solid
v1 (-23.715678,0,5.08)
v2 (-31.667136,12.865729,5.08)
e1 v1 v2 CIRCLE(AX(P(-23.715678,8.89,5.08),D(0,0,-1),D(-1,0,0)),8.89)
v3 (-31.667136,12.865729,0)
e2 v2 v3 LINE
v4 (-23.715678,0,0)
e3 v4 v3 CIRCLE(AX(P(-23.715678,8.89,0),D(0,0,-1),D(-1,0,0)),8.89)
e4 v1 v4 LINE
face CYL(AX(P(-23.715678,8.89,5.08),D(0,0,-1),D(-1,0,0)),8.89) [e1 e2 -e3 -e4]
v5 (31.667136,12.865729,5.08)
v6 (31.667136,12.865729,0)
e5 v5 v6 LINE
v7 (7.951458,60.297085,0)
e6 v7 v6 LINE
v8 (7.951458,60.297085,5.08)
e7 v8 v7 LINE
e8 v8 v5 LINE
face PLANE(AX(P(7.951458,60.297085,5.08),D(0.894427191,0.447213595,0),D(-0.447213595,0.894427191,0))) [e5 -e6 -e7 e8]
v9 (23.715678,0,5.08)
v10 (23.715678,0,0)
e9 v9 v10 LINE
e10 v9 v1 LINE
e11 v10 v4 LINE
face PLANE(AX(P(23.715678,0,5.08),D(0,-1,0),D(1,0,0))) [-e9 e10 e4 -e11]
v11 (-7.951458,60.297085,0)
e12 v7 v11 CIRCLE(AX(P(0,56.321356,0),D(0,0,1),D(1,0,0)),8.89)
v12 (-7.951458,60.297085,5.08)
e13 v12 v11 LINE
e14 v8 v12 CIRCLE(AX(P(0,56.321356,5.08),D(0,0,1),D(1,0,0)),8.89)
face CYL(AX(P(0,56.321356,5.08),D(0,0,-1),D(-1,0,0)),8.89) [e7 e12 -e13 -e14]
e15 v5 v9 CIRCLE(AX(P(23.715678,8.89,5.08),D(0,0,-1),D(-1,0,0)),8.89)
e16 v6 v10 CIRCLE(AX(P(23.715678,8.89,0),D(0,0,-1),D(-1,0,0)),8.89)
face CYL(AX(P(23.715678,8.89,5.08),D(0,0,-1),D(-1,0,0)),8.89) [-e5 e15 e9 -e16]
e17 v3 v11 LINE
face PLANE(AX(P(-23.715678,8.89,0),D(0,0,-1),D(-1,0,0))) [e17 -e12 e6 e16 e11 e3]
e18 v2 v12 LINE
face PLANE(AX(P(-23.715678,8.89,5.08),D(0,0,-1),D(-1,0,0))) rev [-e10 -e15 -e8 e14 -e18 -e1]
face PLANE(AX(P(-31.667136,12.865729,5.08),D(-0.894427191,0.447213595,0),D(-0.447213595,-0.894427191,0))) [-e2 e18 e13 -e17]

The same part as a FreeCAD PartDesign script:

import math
import FreeCAD as App
import Part
import Sketcher
from FreeCAD import Vector
Q = App.Units.Quantity

doc = App.newDocument("Part")
params = doc.addObject("Spreadsheet::Sheet", "Params")
for row, (alias, value) in enumerate([
    ("sketch1_radius", "0.35 in"),
    ("pad1_length", "0.2 in"),
], start=1):
    params.set(f"A{row}", alias)
    params.set(f"B{row}", "=" + value)
    params.setAlias(f"B{row}", alias)

body = doc.addObject("PartDesign::Body", "Body")

# Sketch on XY plane
sketch1 = body.newObject("Sketcher::SketchObject", "Sketch")
sketch1.AttachmentSupport = (doc.getObject("XY_Plane"), [""])
sketch1.MapMode = "FlatFace"
sketch1.addGeometry(Part.LineSegment(Vector(32, 13, 0), Vector(8, 60, 0)), False)
sketch1.addGeometry(Part.ArcOfCircle(Part.Circle(Vector(0, 56, 0), Vector(0, 0, 1), 9), math.radians(27), math.radians(153)), False)
sketch1.addGeometry(Part.LineSegment(Vector(-8, 60, 0), Vector(-32, 13, 0)), False)
sketch1.addGeometry(Part.ArcOfCircle(Part.Circle(Vector(-24, 9, 0), Vector(0, 0, 1), 9), math.radians(153), math.radians(270)), False)
sketch1.addGeometry(Part.LineSegment(Vector(-24, 0, 0), Vector(24, 0, 0)), False)
sketch1.addGeometry(Part.ArcOfCircle(Part.Circle(Vector(24, 9, 0), Vector(0, 0, 1), 9), math.radians(-90), math.radians(27)), False)
sketch1.addConstraint(Sketcher.Constraint("Tangent", 0, 2, 1, 1))
sketch1.addConstraint(Sketcher.Constraint("Tangent", 1, 2, 2, 1))
sketch1.addConstraint(Sketcher.Constraint("Tangent", 2, 2, 3, 1))
sketch1.addConstraint(Sketcher.Constraint("Tangent", 3, 2, 4, 1))
sketch1.addConstraint(Sketcher.Constraint("Tangent", 4, 2, 5, 1))
sketch1.addConstraint(Sketcher.Constraint("Tangent", 5, 2, 0, 1))
sketch1.addConstraint(Sketcher.Constraint("Horizontal", 4))
sketch1.addConstraint(Sketcher.Constraint("Equal", 1, 3))
sketch1.addConstraint(Sketcher.Constraint("Equal", 3, 5))
sketch1.addConstraint(Sketcher.Constraint("Symmetric", 3, 2, 4, 2, -1, 1))
sketch1.addConstraint(Sketcher.Constraint("PointOnObject", 1, 3, -2))
sketch1.addConstraint(Sketcher.Constraint("Radius", 1, Q("0.35 in")))
sketch1.addConstraint(Sketcher.Constraint("DistanceX", 4, 1, 4, 2, 47.431356))
sketch1.addConstraint(Sketcher.Constraint("DistanceY", -1, 1, 2, 2, 12.865729))
sketch1.setExpression("Constraints[11]", "Params.sketch1_radius")
pad1 = body.newObject("PartDesign::Pad", "Pad")
pad1.Profile = sketch1
pad1.setExpression("Length", "Params.pad1_length")

doc.recompute()
